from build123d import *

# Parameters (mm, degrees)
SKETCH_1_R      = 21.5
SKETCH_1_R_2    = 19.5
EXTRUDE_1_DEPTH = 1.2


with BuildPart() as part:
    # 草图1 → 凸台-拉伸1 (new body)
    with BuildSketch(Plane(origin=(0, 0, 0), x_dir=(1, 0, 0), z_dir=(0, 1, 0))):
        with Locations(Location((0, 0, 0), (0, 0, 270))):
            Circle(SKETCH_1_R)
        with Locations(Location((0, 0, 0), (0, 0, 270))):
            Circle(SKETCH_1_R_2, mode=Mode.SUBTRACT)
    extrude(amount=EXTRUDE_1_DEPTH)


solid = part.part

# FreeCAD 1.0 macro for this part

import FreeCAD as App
import Part
import Sketcher
from FreeCAD import Vector
Q = App.Units.Quantity

doc = App.newDocument("Part")
body = doc.addObject("PartDesign::Body", "Body")

# Sketch on XZ plane
sketch1 = body.newObject("Sketcher::SketchObject", "Sketch")
sketch1.AttachmentSupport = (doc.getObject("XZ_Plane"), [""])
sketch1.MapMode = "FlatFace"
sketch1.addGeometry([
    Part.Circle(Vector(0, 0, 0), Vector(0, 0, 1), 22),
    Part.Circle(Vector(0, 0, 0), Vector(0, 0, 1), 20),
], False)
sketch1.addConstraint([
    Sketcher.Constraint("Coincident", 0, 3, -1, 1),
    Sketcher.Constraint("Coincident", 1, 3, -1, 1),
    Sketcher.Constraint("Diameter", 0, Q("43 mm")),
    Sketcher.Constraint("Diameter", 1, Q("39 mm")),
])
pad1 = body.newObject("PartDesign::Pad", "Pad")
pad1.Profile = sketch1
pad1.Length = 1.2
pad1.Reversed = True

doc.recompute()
